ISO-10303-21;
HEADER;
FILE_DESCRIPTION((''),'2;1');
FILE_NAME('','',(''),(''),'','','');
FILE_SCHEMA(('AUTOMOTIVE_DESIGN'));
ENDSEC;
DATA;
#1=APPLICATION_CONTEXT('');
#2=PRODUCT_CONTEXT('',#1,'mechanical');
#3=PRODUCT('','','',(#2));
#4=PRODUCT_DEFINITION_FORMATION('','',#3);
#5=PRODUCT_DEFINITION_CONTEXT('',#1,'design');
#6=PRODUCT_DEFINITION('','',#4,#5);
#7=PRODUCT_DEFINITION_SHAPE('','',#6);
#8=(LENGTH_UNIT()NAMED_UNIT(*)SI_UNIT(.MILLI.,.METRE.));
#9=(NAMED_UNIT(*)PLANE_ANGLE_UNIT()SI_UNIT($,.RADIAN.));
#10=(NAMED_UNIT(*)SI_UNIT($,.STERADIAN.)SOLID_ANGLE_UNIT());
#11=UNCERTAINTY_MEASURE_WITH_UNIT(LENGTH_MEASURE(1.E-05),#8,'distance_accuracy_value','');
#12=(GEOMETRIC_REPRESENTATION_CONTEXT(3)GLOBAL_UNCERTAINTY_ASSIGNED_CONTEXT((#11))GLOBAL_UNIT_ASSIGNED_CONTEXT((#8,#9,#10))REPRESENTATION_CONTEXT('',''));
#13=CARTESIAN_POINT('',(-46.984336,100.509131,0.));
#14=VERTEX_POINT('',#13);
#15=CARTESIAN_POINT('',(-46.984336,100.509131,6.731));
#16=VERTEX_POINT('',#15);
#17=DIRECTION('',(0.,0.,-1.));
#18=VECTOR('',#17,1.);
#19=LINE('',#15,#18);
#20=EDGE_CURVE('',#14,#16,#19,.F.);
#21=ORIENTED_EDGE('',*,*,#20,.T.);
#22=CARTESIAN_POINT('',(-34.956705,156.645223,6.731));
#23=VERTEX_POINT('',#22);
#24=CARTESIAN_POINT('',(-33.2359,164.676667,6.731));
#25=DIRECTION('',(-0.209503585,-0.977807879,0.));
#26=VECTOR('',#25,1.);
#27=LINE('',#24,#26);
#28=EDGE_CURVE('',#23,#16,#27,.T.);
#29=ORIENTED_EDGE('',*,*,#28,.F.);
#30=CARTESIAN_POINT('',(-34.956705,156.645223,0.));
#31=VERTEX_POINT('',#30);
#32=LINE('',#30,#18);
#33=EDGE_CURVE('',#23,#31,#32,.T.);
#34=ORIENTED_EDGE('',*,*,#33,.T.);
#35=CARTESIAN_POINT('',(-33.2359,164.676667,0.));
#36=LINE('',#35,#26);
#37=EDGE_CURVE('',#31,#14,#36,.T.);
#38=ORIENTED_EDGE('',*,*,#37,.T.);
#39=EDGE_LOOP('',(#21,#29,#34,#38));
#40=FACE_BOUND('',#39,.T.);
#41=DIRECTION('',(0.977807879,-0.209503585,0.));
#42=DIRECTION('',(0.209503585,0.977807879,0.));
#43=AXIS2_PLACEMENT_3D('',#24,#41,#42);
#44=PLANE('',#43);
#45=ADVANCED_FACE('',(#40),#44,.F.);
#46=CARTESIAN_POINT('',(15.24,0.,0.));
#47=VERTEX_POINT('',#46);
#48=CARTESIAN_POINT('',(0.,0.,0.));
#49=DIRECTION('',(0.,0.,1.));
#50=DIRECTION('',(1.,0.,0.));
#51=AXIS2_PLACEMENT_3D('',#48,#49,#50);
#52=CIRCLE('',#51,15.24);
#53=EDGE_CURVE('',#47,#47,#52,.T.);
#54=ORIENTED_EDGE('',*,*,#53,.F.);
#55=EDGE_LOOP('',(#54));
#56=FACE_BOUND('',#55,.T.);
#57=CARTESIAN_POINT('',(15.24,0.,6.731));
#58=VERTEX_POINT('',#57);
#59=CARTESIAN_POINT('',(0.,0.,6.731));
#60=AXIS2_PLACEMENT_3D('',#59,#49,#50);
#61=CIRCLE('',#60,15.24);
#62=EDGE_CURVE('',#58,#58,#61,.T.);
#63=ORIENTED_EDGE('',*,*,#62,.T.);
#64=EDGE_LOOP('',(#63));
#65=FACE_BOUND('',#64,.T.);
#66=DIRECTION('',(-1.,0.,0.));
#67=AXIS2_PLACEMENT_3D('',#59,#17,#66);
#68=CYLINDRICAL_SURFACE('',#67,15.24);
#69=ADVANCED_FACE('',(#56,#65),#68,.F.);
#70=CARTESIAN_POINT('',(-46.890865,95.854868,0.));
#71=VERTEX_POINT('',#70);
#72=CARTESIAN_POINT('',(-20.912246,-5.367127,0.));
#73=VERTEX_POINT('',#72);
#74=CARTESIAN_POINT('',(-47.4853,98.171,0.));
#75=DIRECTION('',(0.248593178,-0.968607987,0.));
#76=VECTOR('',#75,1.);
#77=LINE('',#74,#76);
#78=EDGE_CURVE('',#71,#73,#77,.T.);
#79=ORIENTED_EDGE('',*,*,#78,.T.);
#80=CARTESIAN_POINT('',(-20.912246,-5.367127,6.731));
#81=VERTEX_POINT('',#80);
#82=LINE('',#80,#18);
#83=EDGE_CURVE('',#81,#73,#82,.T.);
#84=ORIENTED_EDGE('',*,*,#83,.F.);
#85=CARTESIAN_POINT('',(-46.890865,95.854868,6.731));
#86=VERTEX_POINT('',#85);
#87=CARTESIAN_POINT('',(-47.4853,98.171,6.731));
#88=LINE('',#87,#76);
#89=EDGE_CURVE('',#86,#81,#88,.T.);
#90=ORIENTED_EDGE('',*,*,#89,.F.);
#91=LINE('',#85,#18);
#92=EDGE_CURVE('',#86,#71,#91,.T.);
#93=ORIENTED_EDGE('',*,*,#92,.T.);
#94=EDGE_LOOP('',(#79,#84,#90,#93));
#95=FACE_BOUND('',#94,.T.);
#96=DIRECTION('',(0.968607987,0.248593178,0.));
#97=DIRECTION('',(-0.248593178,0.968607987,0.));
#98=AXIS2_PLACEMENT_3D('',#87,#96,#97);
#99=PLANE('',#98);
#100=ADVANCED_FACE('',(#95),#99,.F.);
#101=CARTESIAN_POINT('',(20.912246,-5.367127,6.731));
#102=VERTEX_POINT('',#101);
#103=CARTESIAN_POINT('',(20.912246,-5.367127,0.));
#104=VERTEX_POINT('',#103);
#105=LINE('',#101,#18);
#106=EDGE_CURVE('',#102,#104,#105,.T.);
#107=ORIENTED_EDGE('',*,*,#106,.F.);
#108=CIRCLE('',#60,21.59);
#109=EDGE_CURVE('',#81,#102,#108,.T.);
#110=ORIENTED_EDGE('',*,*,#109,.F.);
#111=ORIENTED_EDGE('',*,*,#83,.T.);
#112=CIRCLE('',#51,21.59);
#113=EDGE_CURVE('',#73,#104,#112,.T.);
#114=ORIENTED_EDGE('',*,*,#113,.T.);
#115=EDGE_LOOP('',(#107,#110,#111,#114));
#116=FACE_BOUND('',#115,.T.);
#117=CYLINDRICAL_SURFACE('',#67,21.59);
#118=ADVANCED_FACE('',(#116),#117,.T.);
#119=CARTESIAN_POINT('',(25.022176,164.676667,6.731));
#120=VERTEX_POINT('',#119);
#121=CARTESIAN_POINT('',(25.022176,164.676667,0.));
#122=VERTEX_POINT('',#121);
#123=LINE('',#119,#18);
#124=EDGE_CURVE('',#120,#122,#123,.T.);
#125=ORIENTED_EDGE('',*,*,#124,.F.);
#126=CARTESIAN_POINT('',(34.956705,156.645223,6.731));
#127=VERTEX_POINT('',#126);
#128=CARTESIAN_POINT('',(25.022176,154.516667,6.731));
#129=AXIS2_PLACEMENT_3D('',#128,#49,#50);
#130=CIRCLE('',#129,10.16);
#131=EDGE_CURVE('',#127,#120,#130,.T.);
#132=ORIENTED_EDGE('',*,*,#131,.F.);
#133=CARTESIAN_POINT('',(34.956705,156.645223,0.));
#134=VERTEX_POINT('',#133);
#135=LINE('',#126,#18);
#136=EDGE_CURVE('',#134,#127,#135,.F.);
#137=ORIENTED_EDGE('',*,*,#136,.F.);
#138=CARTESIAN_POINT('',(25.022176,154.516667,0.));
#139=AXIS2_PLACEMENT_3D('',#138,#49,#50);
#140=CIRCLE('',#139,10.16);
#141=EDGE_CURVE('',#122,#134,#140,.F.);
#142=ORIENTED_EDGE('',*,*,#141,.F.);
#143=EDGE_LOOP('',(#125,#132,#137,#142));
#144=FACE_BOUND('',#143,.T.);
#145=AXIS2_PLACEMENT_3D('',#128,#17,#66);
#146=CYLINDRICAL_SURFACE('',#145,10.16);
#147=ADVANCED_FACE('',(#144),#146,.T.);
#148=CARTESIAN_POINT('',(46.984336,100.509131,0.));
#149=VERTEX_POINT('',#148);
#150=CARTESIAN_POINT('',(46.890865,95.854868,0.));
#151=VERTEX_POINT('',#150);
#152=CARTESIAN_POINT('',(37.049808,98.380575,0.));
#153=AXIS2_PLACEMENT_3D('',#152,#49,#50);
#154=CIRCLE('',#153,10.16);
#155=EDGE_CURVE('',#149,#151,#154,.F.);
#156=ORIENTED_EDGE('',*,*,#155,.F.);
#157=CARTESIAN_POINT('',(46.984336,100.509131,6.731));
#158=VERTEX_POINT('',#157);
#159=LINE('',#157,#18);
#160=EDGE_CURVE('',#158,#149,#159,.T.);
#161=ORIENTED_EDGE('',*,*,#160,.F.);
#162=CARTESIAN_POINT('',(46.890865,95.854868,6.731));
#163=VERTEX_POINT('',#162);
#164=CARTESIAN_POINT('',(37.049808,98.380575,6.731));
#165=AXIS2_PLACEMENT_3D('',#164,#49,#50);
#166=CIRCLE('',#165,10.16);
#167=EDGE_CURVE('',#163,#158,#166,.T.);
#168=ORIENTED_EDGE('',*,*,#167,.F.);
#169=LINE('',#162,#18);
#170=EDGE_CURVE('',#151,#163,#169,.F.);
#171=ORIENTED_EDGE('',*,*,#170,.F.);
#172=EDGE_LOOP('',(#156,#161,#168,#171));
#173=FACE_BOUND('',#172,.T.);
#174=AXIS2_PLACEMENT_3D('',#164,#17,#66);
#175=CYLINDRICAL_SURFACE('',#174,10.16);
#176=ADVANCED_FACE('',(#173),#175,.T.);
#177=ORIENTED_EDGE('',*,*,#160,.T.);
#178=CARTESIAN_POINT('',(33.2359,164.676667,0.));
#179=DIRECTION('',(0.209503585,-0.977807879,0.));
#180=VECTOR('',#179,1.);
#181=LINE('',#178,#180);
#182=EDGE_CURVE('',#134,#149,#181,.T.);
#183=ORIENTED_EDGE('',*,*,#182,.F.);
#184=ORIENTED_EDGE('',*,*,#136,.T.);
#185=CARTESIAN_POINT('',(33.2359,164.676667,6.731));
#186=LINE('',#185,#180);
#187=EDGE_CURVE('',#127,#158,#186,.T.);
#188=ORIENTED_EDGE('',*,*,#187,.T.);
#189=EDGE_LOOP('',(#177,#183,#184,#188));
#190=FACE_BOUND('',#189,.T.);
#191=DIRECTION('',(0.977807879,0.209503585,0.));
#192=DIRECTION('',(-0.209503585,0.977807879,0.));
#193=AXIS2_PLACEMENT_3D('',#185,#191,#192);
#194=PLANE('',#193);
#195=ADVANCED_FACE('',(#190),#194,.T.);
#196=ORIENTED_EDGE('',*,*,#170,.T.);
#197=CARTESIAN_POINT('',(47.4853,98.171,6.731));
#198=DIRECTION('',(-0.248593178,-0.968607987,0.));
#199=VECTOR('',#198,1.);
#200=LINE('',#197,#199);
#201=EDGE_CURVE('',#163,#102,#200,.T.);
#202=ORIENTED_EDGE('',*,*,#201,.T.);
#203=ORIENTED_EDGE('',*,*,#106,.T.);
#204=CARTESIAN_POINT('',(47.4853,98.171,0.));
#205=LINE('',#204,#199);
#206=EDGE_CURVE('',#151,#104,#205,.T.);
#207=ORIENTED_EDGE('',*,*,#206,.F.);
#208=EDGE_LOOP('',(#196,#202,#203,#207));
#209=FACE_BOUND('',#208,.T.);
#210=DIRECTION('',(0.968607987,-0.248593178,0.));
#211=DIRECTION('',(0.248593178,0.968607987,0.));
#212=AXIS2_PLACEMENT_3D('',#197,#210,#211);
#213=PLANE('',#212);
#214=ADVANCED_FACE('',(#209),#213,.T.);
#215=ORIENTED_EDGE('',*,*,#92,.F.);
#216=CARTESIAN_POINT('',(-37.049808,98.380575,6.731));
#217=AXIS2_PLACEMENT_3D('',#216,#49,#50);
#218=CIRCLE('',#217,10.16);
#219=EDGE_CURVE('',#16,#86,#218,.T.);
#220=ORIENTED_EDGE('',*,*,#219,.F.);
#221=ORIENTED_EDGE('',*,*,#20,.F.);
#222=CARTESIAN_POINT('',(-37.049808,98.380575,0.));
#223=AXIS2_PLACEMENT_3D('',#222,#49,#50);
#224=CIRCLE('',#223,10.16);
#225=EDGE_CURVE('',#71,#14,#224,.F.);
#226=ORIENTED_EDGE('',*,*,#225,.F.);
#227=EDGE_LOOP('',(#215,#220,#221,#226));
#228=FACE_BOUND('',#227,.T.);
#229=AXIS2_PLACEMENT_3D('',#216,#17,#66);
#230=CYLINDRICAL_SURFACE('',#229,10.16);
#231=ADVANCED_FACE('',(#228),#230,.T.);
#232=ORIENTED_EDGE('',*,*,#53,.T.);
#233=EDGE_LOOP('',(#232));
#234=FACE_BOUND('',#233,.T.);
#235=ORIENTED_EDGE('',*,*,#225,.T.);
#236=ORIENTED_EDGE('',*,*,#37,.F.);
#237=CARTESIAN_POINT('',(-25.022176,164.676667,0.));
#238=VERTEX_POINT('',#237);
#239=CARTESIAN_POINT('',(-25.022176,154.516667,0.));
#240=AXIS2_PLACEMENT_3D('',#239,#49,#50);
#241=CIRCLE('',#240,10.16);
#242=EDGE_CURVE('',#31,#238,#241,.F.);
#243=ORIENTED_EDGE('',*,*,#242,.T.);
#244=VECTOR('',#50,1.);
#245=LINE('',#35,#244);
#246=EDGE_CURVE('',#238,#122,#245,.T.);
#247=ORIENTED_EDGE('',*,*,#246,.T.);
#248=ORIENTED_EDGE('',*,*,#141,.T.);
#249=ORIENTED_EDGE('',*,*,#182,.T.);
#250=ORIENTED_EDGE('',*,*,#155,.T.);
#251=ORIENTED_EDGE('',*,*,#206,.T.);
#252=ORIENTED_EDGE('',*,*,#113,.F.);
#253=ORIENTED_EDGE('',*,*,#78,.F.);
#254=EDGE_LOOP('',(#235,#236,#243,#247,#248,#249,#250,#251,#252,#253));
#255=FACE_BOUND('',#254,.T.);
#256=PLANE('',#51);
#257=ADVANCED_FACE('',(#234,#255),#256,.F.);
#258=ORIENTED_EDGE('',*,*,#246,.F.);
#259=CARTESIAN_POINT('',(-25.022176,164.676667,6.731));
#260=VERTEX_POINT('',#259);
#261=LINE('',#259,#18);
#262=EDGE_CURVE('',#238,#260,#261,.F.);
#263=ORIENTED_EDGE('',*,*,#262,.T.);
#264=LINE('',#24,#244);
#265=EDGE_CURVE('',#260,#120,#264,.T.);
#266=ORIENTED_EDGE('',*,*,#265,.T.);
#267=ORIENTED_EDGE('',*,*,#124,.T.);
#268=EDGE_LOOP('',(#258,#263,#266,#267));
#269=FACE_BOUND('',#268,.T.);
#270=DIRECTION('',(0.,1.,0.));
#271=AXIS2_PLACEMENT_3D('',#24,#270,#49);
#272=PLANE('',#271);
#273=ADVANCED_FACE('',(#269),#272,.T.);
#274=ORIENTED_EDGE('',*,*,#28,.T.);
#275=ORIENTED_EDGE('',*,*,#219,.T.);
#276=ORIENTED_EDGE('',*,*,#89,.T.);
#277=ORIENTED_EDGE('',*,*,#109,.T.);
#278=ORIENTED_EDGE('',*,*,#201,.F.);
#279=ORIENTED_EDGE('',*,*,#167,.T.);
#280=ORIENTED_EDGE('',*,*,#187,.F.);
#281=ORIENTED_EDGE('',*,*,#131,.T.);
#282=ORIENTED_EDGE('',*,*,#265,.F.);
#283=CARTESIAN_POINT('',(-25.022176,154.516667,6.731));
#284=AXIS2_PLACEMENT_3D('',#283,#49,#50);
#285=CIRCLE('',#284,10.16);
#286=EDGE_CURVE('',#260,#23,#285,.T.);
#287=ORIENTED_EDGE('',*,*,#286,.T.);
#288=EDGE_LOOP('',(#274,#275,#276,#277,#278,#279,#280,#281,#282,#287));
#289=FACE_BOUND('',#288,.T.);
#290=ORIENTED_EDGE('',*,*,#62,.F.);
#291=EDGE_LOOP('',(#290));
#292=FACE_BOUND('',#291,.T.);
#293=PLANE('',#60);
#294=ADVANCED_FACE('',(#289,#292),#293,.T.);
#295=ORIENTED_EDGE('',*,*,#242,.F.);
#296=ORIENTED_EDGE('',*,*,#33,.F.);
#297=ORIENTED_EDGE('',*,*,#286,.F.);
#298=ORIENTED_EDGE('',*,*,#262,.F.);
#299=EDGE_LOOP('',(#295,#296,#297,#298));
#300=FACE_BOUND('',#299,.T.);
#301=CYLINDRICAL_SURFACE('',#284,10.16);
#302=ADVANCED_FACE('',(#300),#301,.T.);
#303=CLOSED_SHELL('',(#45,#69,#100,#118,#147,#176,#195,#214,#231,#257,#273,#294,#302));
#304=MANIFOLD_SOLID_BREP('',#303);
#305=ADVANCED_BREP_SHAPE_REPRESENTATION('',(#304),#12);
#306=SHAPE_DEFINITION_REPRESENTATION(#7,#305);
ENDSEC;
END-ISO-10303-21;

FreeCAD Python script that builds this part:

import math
import FreeCAD as App
import Part
import Sketcher

V = App.Vector
Q = App.Units.Quantity


def edges_at(feature, points):
    """Names of the edges that pass closest to the given points."""
    edges = feature.Shape.Edges
    near = lambda p: min(range(len(edges)), key=lambda i: edges[i].distToShape(Part.Vertex(*p))[0])
    return sorted({f"Edge{near(p) + 1}" for p in points})

doc = App.newDocument("Part")
body = doc.addObject("PartDesign::Body", "Body")

sketch1 = doc.addObject("Sketcher::SketchObject", "Sketch")
body.addObject(sketch1)
sketch1.AttachmentSupport = (doc.XY_Plane, [""])
sketch1.MapMode = "FlatFace"
sketch1.addGeometry([
    Part.LineSegment(V(33, 165, 0), V(-33, 165, 0)),
    Part.LineSegment(V(-33, 165, 0), V(-47, 98, 0)),
    Part.LineSegment(V(-47, 98, 0), V(-21, -5, 0)),
    Part.ArcOfCircle(Part.Circle(V(0, 0, 0), V(0, 0, 1), 22), math.radians(-166), math.radians(-14)),
    Part.LineSegment(V(21, -5, 0), V(47, 98, 0)),
    Part.LineSegment(V(47, 98, 0), V(33, 165, 0)),
    Part.Circle(V(0, 0, 0), V(0, 0, 1), 15),
], False)
sketch1.addConstraint([
    Sketcher.Constraint("Coincident", 0, 2, 1, 1),
    Sketcher.Constraint("Coincident", 1, 2, 2, 1),
    Sketcher.Constraint("Tangent", 2, 2, 3, 1),
    Sketcher.Constraint("Tangent", 3, 2, 4, 1),
    Sketcher.Constraint("Coincident", 4, 2, 5, 1),
    Sketcher.Constraint("Coincident", 5, 2, 0, 1),
    Sketcher.Constraint("Horizontal", 0),
    Sketcher.Constraint("Coincident", 3, 3, -1, 1),
    Sketcher.Constraint("Coincident", 6, 3, -1, 1),
    Sketcher.Constraint("Symmetric", 1, 2, 4, 2, -2),
    Sketcher.Constraint("Equal", 1, 5),
    Sketcher.Constraint("Diameter", 6, Q("1.2 in")),
    Sketcher.Constraint("Radius", 3, Q("0.85 in")),
    Sketcher.Constraint("DistanceX", 0, 2, 0, 1, Q("2.617 in")),
    Sketcher.Constraint("DistanceY", -1, 1, 1, 2, Q("3.865 in")),
    Sketcher.Constraint("DistanceX", 1, 2, 0, 2, Q("0.561 in")),
    Sketcher.Constraint("Distance", 1, 68.015065),
])
pad1 = doc.addObject("PartDesign::Pad", "Pad")
body.addObject(pad1)
pad1.Profile = sketch1
pad1.Length = Q("0.265 in")
doc.recompute()

fillet = doc.addObject("PartDesign::Fillet", "Fillet")
body.addObject(fillet)
fillet.Base = (pad1, edges_at(pad1, [(-47.485, 98.171, 3.365), (47.485, 98.171, 3.365)]))
fillet.Radius = Q("0.4 in")
doc.recompute()

fillet2 = doc.addObject("PartDesign::Fillet", "Fillet001")
body.addObject(fillet2)
fillet2.Base = (fillet, edges_at(fillet, [(-33.236, 164.677, 3.365), (33.236, 164.677, 3.365)]))
fillet2.Radius = Q("0.4 in")

doc.recompute()
